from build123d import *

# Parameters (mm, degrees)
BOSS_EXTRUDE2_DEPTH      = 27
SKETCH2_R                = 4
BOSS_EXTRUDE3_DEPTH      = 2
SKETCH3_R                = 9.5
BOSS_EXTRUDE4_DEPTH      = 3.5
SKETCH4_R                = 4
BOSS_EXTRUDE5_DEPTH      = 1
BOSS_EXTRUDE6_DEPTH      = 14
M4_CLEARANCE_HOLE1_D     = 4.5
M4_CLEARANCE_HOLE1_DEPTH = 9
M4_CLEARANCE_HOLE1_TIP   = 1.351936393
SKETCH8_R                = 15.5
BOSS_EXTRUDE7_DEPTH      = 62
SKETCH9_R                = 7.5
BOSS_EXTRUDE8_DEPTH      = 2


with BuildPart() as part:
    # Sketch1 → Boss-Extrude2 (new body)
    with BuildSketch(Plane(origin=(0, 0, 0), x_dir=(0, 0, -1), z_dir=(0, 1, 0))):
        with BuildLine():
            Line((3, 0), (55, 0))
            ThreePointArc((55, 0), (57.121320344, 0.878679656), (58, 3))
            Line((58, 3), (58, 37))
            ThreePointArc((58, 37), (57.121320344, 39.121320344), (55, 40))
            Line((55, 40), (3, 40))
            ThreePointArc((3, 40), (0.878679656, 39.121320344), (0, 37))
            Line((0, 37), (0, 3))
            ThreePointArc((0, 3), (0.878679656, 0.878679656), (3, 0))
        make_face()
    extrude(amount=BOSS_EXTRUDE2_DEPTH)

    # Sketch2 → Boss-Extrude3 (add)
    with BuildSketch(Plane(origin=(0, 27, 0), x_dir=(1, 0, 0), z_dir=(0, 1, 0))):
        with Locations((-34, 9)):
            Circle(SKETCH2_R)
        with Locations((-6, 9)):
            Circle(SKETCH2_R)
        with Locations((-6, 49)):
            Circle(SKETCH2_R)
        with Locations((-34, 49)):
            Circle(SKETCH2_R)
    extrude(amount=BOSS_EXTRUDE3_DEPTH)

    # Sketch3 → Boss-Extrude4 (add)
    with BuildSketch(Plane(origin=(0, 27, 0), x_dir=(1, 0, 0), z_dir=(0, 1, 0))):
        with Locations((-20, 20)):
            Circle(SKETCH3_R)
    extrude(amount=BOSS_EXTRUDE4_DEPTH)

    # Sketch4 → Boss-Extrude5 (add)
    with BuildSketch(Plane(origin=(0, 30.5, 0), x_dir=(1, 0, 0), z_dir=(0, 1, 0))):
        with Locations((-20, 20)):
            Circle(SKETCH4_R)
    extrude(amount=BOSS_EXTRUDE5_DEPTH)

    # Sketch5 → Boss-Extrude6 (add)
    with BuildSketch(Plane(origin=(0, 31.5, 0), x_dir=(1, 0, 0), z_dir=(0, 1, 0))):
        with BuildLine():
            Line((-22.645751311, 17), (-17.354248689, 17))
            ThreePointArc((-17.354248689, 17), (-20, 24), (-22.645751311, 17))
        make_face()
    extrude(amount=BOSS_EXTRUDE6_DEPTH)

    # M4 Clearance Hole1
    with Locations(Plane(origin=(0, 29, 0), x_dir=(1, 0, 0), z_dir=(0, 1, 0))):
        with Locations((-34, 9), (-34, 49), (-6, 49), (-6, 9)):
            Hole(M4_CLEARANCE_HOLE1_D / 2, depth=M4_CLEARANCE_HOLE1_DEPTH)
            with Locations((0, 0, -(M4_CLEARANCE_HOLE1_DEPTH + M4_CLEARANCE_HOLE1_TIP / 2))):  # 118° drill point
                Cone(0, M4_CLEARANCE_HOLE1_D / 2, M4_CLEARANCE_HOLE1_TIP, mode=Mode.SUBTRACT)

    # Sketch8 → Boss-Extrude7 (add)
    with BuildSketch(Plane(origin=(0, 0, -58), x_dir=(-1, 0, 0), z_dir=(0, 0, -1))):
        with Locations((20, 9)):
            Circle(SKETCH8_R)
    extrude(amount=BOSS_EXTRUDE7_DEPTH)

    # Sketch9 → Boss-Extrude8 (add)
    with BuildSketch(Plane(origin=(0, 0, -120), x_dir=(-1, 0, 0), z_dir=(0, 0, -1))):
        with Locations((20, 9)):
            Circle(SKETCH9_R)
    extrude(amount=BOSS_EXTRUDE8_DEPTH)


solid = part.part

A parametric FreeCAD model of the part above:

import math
import FreeCAD as App
import Part
import Sketcher

doc = App.newDocument("Part")
body = doc.addObject("PartDesign::Body", "Body")

# Sketch on XZ plane
sketch1 = body.newObject("Sketcher::SketchObject", "Sketch")
sketch1.AttachmentSupport = (doc.getObject("XZ_Plane"), [""])
sketch1.MapMode = "FlatFace"
sketch1.addGeometry([
    Part.LineSegment(App.Vector(0, -3, 0), App.Vector(0, -55, 0)),  # 0
    Part.ArcOfCircle(Part.Circle(App.Vector(-3, -55, 0), App.Vector(0, 0, 1), 3), math.radians(-90), math.radians(0)),  # 1
    Part.LineSegment(App.Vector(-3, -58, 0), App.Vector(-37, -58, 0)),  # 2
    Part.ArcOfCircle(Part.Circle(App.Vector(-37, -55, 0), App.Vector(0, 0, 1), 3), math.radians(180), math.radians(270)),  # 3
    Part.LineSegment(App.Vector(-40, -55, 0), App.Vector(-40, -3, 0)),  # 4
    Part.ArcOfCircle(Part.Circle(App.Vector(-37, -3, 0), App.Vector(0, 0, 1), 3), math.radians(90), math.radians(180)),  # 5
    Part.LineSegment(App.Vector(-37, 0, 0), App.Vector(-3, 0, 0)),  # 6
    Part.ArcOfCircle(Part.Circle(App.Vector(-3, -3, 0), App.Vector(0, 0, 1), 3), math.radians(0), math.radians(90)),  # 7
], False)
sketch1.addConstraint([
    Sketcher.Constraint("Tangent", 0, 2, 1, 2),
    Sketcher.Constraint("Tangent", 1, 1, 2, 1),
    Sketcher.Constraint("Tangent", 2, 2, 3, 2),
    Sketcher.Constraint("Tangent", 3, 1, 4, 1),
    Sketcher.Constraint("Tangent", 4, 2, 5, 2),
    Sketcher.Constraint("Tangent", 5, 1, 6, 1),
    Sketcher.Constraint("Tangent", 6, 2, 7, 2),
    Sketcher.Constraint("Tangent", 7, 1, 0, 1),
    Sketcher.Constraint("Vertical", 0),
    Sketcher.Constraint("Horizontal", 2),
    Sketcher.Constraint("Vertical", 4),
    Sketcher.Constraint("Horizontal", 6),
    Sketcher.Constraint("Equal", 1, 3),
    Sketcher.Constraint("Equal", 3, 5),
    Sketcher.Constraint("Equal", 5, 7),
    Sketcher.Constraint("PointOnObject", 0, 2, -2),
    Sketcher.Constraint("PointOnObject", 5, 1, -1),
    Sketcher.Constraint("Radius", 1, 3.0),
    Sketcher.Constraint("DistanceX", 2, 2, 2, 1, 34.0),
    Sketcher.Constraint("DistanceY", 0, 2, 0, 1, 52.0),
])
pad1 = body.newObject("PartDesign::Pad", "Pad")
pad1.Profile = sketch1
pad1.Length = 27
pad1.Reversed = True

# Sketch on XZ plane
sketch2 = body.newObject("Sketcher::SketchObject", "Sketch001")
sketch2.AttachmentSupport = (doc.getObject("XZ_Plane"), [""])
sketch2.MapMode = "FlatFace"
sketch2.AttachmentOffset = App.Placement(App.Vector(0, 0, -27), App.Rotation())
sketch2.addGeometry([
    Part.Circle(App.Vector(-34, -9, 0), App.Vector(0, 0, 1), 4),
    Part.Circle(App.Vector(-6, -9, 0), App.Vector(0, 0, 1), 4),
    Part.Circle(App.Vector(-6, -49, 0), App.Vector(0, 0, 1), 4),
    Part.Circle(App.Vector(-34, -49, 0), App.Vector(0, 0, 1), 4),
], False)
sketch2.addConstraint([
    Sketcher.Constraint("Equal", 0, 1),
    Sketcher.Constraint("Equal", 1, 2),
    Sketcher.Constraint("Equal", 2, 3),
    Sketcher.Constraint("Horizontal", 0, 3, 1, 3),
    Sketcher.Constraint("Horizontal", 2, 3, 3, 3),
    Sketcher.Constraint("Vertical", 1, 3, 2, 3),
    Sketcher.Constraint("Vertical", 0, 3, 3, 3),
    Sketcher.Constraint("Diameter", 0, 8.0),
    Sketcher.Constraint("DistanceX", 0, 3, -1, 1, 34.0),
    Sketcher.Constraint("DistanceY", 0, 3, -1, 1, 9.0),
    Sketcher.Constraint("DistanceX", 1, 3, -1, 1, 6.0),
    Sketcher.Constraint("DistanceY", 2, 3, -1, 1, 49.0),
])
pad2 = body.newObject("PartDesign::Pad", "Pad001")
pad2.Profile = sketch2
pad2.Length = 2
pad2.Reversed = True

# Sketch on XZ plane
sketch3 = body.newObject("Sketcher::SketchObject", "Sketch002")
sketch3.AttachmentSupport = (doc.getObject("XZ_Plane"), [""])
sketch3.MapMode = "FlatFace"
sketch3.AttachmentOffset = App.Placement(App.Vector(0, 0, -27), App.Rotation())
sketch3.addGeometry(Part.Circle(App.Vector(-20, -20, 0), App.Vector(0, 0, 1), 10), False)
sketch3.addConstraint([
    Sketcher.Constraint("Diameter", 0, 19.0),
    Sketcher.Constraint("DistanceX", 0, 3, -1, 1, 20.0),
    Sketcher.Constraint("DistanceY", 0, 3, -1, 1, 20.0),
])
pad3 = body.newObject("PartDesign::Pad", "Pad002")
pad3.Profile = sketch3
pad3.Length = 3.5
pad3.Reversed = True

# Sketch on XZ plane
sketch4 = body.newObject("Sketcher::SketchObject", "Sketch003")
sketch4.AttachmentSupport = (doc.getObject("XZ_Plane"), [""])
sketch4.MapMode = "FlatFace"
sketch4.AttachmentOffset = App.Placement(App.Vector(0, 0, -30.5), App.Rotation())
sketch4.addGeometry(Part.Circle(App.Vector(-20, -20, 0), App.Vector(0, 0, 1), 4), False)
sketch4.addConstraint([
    Sketcher.Constraint("Diameter", 0, 8.0),
    Sketcher.Constraint("DistanceX", 0, 3, -1, 1, 20.0),
    Sketcher.Constraint("DistanceY", 0, 3, -1, 1, 20.0),
])
pad4 = body.newObject("PartDesign::Pad", "Pad003")
pad4.Profile = sketch4
pad4.Length = 1
pad4.Reversed = True

# Sketch on XZ plane
sketch5 = body.newObject("Sketcher::SketchObject", "Sketch004")
sketch5.AttachmentSupport = (doc.getObject("XZ_Plane"), [""])
sketch5.MapMode = "FlatFace"
sketch5.AttachmentOffset = App.Placement(App.Vector(0, 0, -31.5), App.Rotation())
sketch5.addGeometry([
    Part.LineSegment(App.Vector(-22.6, -17, 0), App.Vector(-17.4, -17, 0)),
    Part.ArcOfCircle(Part.Circle(App.Vector(-20, -20, 0), App.Vector(0, 0, 1), 4), math.radians(131), math.radians(409)),
], False)
sketch5.addConstraint([
    Sketcher.Constraint("Coincident", 0, 1, 1, 1),
    Sketcher.Constraint("Coincident", 1, 2, 0, 2),
    Sketcher.Constraint("Horizontal", 0),
    Sketcher.Constraint("Radius", 1, 4.0),
    Sketcher.Constraint("DistanceX", 1, 3, -1, 1, 20.0),
    Sketcher.Constraint("DistanceY", 1, 3, -1, 1, 20.0),
    Sketcher.Constraint("DistanceY", 0, 1, -1, 1, 17.0),
])
pad5 = body.newObject("PartDesign::Pad", "Pad004")
pad5.Profile = sketch5
pad5.Length = 14
pad5.Reversed = True

# Sketch on XZ plane
sketch6 = body.newObject("Sketcher::SketchObject", "Sketch005")
sketch6.AttachmentSupport = (doc.getObject("XZ_Plane"), [""])
sketch6.MapMode = "FlatFace"
sketch6.AttachmentOffset = App.Placement(App.Vector(0, 0, -29), App.Rotation())
sketch6.addGeometry([
    Part.Circle(App.Vector(-34, -9, 0), App.Vector(0, 0, 1), 2.2),
    Part.Circle(App.Vector(-34, -49, 0), App.Vector(0, 0, 1), 2.2),
    Part.Circle(App.Vector(-6, -49, 0), App.Vector(0, 0, 1), 2.2),
    Part.Circle(App.Vector(-6, -9, 0), App.Vector(0, 0, 1), 2.2),
], False)
sketch6.addConstraint([
    Sketcher.Constraint("Equal", 0, 1),
    Sketcher.Constraint("Equal", 1, 2),
    Sketcher.Constraint("Equal", 2, 3),
    Sketcher.Constraint("Horizontal", 1, 3, 2, 3),
    Sketcher.Constraint("Horizontal", 0, 3, 3, 3),
    Sketcher.Constraint("Vertical", 0, 3, 1, 3),
    Sketcher.Constraint("Vertical", 2, 3, 3, 3),
    Sketcher.Constraint("Diameter", 0, 4.5),
    Sketcher.Constraint("DistanceX", 0, 3, -1, 1, 34.0),
    Sketcher.Constraint("DistanceY", 0, 3, -1, 1, 9.0),
    Sketcher.Constraint("DistanceY", 1, 3, -1, 1, 49.0),
    Sketcher.Constraint("DistanceX", 2, 3, -1, 1, 6.0),
])
doc.recompute()
hole = body.newObject("PartDesign::Hole", "Hole")
hole.Profile = sketch6
hole.ThreadType = "None"
hole.Diameter = 4.5
hole.DepthType = "Dimension"
hole.Depth = 9
hole.DrillPoint = "Angled"
hole.DrillPointAngle = 118
hole.Reversed = True

# Sketch on XY plane
sketch7 = body.newObject("Sketcher::SketchObject", "Sketch006")
sketch7.AttachmentSupport = (doc.getObject("XY_Plane"), [""])
sketch7.MapMode = "FlatFace"
sketch7.AttachmentOffset = App.Placement(App.Vector(0, 0, -58), App.Rotation())
sketch7.addGeometry(Part.Circle(App.Vector(-20, 9, 0), App.Vector(0, 0, 1), 16), False)
sketch7.addConstraint([
    Sketcher.Constraint("Diameter", 0, 31.0),
    Sketcher.Constraint("DistanceX", 0, 3, -1, 1, 20.0),
    Sketcher.Constraint("DistanceY", -1, 1, 0, 3, 9.0),
])
pad6 = body.newObject("PartDesign::Pad", "Pad005")
pad6.Profile = sketch7
pad6.Length = 62
pad6.Reversed = True

# Sketch on XY plane
sketch8 = body.newObject("Sketcher::SketchObject", "Sketch007")
sketch8.AttachmentSupport = (doc.getObject("XY_Plane"), [""])
sketch8.MapMode = "FlatFace"
sketch8.AttachmentOffset = App.Placement(App.Vector(0, 0, -120), App.Rotation())
sketch8.addGeometry(Part.Circle(App.Vector(-20, 9, 0), App.Vector(0, 0, 1), 8), False)
sketch8.addConstraint([
    Sketcher.Constraint("Diameter", 0, 15.0),
    Sketcher.Constraint("DistanceX", 0, 3, -1, 1, 20.0),
    Sketcher.Constraint("DistanceY", -1, 1, 0, 3, 9.0),
])
pad7 = body.newObject("PartDesign::Pad", "Pad006")
pad7.Profile = sketch8
pad7.Length = 2
pad7.Reversed = True

doc.recompute()
